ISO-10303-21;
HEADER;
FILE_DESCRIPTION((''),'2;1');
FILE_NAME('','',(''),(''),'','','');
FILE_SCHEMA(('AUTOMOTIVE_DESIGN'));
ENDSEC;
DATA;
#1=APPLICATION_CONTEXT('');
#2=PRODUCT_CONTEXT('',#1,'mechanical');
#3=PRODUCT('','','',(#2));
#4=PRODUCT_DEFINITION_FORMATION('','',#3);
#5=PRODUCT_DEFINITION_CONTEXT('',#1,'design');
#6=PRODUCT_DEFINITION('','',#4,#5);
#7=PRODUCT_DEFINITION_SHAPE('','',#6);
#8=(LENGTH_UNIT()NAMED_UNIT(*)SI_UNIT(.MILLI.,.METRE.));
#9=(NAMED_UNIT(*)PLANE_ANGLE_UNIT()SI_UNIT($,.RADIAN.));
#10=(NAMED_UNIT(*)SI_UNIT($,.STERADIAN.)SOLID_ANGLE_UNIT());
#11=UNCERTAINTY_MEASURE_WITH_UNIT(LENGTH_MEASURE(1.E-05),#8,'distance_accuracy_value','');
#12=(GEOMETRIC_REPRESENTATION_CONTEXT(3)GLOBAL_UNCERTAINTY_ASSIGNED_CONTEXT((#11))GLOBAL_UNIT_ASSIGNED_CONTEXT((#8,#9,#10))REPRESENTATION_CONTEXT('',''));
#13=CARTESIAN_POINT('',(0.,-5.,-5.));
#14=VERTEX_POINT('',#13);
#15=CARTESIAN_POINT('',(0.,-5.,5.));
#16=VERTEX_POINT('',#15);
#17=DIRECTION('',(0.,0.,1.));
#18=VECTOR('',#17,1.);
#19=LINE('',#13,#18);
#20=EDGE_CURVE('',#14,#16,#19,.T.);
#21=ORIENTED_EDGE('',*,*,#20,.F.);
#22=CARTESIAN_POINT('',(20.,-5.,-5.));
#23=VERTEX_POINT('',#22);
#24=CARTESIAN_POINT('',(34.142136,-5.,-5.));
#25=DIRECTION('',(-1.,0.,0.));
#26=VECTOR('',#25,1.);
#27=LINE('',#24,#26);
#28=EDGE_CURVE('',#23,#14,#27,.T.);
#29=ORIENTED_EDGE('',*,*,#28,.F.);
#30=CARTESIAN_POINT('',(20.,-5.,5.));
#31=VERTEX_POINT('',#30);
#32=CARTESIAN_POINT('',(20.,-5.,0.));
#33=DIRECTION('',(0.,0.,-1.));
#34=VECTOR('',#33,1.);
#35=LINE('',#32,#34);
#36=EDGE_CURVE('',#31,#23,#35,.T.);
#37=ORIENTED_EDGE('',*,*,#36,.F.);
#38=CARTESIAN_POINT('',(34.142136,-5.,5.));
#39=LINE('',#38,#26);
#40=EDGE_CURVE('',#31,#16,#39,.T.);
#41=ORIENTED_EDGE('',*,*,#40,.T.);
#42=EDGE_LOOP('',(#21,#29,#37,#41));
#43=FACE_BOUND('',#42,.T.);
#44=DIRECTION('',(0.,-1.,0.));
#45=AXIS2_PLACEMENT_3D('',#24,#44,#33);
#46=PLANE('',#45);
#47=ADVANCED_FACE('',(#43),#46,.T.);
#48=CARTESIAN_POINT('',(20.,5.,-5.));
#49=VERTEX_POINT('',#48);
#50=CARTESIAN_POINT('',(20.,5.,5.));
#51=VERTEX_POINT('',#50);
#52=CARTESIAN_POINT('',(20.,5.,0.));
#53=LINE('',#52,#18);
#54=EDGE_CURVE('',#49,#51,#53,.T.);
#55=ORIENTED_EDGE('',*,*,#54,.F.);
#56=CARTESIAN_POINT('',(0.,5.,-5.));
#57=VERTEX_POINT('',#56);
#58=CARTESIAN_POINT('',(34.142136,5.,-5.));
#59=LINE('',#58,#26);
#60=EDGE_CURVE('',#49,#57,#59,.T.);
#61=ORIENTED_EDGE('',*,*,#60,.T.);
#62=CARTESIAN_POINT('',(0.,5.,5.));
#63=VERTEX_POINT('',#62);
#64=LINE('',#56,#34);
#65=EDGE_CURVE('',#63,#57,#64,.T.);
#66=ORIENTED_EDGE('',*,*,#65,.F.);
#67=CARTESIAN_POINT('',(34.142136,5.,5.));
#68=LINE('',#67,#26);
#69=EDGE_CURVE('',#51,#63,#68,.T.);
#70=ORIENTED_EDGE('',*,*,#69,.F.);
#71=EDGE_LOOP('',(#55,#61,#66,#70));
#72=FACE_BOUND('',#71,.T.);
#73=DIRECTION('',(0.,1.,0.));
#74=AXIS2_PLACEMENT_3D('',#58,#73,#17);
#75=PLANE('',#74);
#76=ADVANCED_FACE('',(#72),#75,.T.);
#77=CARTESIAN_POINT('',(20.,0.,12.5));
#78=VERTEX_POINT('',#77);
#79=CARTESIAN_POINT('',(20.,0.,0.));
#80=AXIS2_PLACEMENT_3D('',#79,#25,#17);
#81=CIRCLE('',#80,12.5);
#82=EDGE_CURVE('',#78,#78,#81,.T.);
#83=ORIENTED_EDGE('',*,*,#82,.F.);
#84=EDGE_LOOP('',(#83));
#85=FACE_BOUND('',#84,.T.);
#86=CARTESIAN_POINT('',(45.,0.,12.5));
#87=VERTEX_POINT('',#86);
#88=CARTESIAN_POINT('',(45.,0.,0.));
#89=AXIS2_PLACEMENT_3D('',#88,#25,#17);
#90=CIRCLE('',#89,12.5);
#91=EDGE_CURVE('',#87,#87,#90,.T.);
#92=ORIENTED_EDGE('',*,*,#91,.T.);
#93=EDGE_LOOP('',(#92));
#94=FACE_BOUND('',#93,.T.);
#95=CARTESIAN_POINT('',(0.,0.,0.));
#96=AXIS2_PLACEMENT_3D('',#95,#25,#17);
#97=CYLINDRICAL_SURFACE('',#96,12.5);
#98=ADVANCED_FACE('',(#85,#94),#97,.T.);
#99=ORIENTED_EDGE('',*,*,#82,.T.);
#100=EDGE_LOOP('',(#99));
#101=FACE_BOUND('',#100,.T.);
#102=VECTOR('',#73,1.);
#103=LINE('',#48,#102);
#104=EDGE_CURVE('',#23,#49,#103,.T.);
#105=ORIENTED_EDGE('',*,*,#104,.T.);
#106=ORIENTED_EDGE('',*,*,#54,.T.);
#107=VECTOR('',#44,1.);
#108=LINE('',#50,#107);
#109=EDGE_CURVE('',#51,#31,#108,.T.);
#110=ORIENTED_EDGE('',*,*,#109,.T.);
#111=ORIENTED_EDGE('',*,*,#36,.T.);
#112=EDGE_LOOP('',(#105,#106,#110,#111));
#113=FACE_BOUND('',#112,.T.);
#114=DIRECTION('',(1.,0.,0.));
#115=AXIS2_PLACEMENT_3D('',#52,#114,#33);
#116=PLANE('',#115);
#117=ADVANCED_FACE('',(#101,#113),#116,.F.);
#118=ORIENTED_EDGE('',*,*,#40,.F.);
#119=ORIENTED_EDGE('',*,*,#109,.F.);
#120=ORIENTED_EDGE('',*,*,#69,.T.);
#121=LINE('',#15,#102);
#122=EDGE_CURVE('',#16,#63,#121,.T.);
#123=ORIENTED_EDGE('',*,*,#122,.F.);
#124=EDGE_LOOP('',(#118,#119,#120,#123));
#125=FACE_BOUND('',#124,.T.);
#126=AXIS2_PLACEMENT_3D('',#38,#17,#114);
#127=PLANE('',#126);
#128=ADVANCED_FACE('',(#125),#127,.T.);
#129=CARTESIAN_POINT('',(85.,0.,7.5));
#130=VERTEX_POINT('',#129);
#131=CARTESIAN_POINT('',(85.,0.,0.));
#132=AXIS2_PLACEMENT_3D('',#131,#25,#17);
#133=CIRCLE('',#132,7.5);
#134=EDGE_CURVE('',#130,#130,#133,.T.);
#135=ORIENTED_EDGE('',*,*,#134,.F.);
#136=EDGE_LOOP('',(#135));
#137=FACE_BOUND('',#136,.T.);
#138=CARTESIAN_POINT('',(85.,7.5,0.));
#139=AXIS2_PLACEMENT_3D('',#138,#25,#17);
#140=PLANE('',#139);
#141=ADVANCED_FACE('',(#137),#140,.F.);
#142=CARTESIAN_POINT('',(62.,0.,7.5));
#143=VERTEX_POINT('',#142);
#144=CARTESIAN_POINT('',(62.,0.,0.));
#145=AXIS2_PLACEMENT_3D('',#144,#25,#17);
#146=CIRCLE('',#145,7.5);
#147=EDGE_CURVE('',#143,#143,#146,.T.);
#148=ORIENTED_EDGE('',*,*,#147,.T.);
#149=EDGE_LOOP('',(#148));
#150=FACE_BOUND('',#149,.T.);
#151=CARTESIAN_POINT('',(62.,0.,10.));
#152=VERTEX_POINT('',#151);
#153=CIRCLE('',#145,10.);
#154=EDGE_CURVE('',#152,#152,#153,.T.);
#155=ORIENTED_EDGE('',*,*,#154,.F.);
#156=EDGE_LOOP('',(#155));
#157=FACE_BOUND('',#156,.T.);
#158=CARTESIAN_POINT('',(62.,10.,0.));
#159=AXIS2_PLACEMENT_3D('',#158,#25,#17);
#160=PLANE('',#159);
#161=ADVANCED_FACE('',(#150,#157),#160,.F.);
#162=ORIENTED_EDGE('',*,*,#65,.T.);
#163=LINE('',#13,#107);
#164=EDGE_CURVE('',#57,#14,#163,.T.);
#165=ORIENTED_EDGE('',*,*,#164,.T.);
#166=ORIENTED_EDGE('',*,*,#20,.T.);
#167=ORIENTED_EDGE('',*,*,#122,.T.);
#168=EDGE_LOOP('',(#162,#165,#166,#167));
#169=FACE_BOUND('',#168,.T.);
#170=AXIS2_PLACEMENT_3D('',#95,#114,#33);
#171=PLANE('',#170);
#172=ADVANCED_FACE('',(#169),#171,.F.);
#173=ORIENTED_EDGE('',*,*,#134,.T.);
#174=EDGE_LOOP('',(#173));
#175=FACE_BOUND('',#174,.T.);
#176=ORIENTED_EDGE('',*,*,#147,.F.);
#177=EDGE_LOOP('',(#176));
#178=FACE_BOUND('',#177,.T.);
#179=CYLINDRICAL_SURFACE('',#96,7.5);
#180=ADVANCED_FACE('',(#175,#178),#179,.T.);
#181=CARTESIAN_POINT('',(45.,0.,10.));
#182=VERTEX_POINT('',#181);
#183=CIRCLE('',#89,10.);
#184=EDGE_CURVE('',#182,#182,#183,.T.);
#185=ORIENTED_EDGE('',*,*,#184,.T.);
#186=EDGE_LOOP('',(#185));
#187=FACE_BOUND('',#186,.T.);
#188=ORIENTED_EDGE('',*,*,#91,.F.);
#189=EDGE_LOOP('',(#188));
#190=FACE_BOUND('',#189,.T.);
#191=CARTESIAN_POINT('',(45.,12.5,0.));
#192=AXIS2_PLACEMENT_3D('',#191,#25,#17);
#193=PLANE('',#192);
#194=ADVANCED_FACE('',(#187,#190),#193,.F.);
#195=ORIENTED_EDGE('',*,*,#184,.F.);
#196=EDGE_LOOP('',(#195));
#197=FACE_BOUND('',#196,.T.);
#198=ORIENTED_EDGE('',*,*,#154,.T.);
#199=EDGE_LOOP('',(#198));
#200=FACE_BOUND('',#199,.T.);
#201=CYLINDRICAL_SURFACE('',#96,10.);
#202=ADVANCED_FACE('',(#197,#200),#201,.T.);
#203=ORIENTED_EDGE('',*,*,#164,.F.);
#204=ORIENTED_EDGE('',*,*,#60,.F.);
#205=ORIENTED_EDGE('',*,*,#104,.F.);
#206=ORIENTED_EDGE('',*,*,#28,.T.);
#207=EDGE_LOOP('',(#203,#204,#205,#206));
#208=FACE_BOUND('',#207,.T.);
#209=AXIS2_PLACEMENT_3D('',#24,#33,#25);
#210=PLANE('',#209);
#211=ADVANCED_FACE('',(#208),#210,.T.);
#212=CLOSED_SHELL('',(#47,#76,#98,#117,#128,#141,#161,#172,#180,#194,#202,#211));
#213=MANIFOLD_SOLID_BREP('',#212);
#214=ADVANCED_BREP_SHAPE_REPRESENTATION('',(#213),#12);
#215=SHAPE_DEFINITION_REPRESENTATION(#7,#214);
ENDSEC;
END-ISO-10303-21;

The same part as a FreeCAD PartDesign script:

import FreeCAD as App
import Part
import Sketcher

V = App.Vector
Q = App.Units.Quantity


def add_polygon(sketch, points):
    """Adds a closed chain of lines whose ends are joined by coincident constraints."""
    first, n = sketch.GeometryCount, len(points)
    for a, b in zip(points, points[1:] + points[:1]):
        sketch.addGeometry(Part.LineSegment(App.Vector(*a, 0), App.Vector(*b, 0)), False)
    for i in range(n):
        sketch.addConstraint(Sketcher.Constraint("Coincident", first + i, 2, first + (i + 1) % n, 1))

doc = App.newDocument("Part")
body = doc.addObject("PartDesign::Body", "Body")

# Sketch on XY plane
sketch1 = doc.addObject("Sketcher::SketchObject", "Sketch")
body.addObject(sketch1)
sketch1.AttachmentSupport = (doc.XY_Plane, [""])
sketch1.MapMode = "FlatFace"
add_polygon(sketch1, [(0, 5), (0, 0), (85, 0), (85, 7.5), (62, 7.5), (62, 10), (45, 10), (45, 12.5), (20, 12.5), (20, 5)])  # lines 0-9
sketch1.addConstraint(Sketcher.Constraint("Vertical", 0))
sketch1.addConstraint(Sketcher.Constraint("Horizontal", 1))
sketch1.addConstraint(Sketcher.Constraint("Vertical", 2))
sketch1.addConstraint(Sketcher.Constraint("Horizontal", 3))
sketch1.addConstraint(Sketcher.Constraint("Vertical", 4))
sketch1.addConstraint(Sketcher.Constraint("Horizontal", 5))
sketch1.addConstraint(Sketcher.Constraint("Vertical", 6))
sketch1.addConstraint(Sketcher.Constraint("Horizontal", 7))
sketch1.addConstraint(Sketcher.Constraint("Vertical", 8))
sketch1.addConstraint(Sketcher.Constraint("Horizontal", 9))
sketch1.addConstraint(Sketcher.Constraint("Coincident", 0, 2, -1, 1))
sketch1.addConstraint(Sketcher.Constraint("Equal", 4, 6))
sketch1.addConstraint(Sketcher.Constraint("Equal", 2, 8))
sketch1.addConstraint(Sketcher.Constraint("DistanceX", 1, 1, 1, 2, Q("85 mm")))
sketch1.addConstraint(Sketcher.Constraint("DistanceX", 3, 2, 3, 1, Q("23 mm")))
sketch1.addConstraint(Sketcher.Constraint("DistanceX", 5, 2, 5, 1, Q("17 mm")))
sketch1.addConstraint(Sketcher.Constraint("DistanceX", 7, 2, 7, 1, Q("25 mm")))
sketch1.addConstraint(Sketcher.Constraint("DistanceY", 0, 2, 0, 1, Q("5 mm")))
sketch1.addConstraint(Sketcher.Constraint("DistanceY", 2, 1, 2, 2, Q("7.5 mm")))
revolution = doc.addObject("PartDesign::Revolution", "Revolution")
body.addObject(revolution)
revolution.Profile = sketch1
revolution.ReferenceAxis = (sketch1, ["H_Axis"])
revolution.Angle = 360

# Sketch on YZ plane
sketch2 = doc.addObject("Sketcher::SketchObject", "Sketch001")
body.addObject(sketch2)
sketch2.AttachmentSupport = (doc.YZ_Plane, [""])
sketch2.MapMode = "FlatFace"
add_polygon(sketch2, [(5, -5), (-5, -5), (-5, 5), (5, 5)])  # lines 0-3
sketch2.addConstraint(Sketcher.Constraint("Horizontal", 0))
sketch2.addConstraint(Sketcher.Constraint("Vertical", 1))
sketch2.addConstraint(Sketcher.Constraint("Horizontal", 2))
sketch2.addConstraint(Sketcher.Constraint("Vertical", 3))
sketch2.addConstraint(Sketcher.Constraint("Symmetric", 0, 2, 2, 2, -1, 1))
sketch2.addConstraint(Sketcher.Constraint("Equal", 2, 1))
sketch2.addConstraint(Sketcher.Constraint("DistanceX", 0, 2, 0, 1, Q("10 mm")))
pad1 = doc.addObject("PartDesign::Pad", "Pad")
body.addObject(pad1)
pad1.Profile = sketch2
pad1.Length = 20

doc.recompute()
